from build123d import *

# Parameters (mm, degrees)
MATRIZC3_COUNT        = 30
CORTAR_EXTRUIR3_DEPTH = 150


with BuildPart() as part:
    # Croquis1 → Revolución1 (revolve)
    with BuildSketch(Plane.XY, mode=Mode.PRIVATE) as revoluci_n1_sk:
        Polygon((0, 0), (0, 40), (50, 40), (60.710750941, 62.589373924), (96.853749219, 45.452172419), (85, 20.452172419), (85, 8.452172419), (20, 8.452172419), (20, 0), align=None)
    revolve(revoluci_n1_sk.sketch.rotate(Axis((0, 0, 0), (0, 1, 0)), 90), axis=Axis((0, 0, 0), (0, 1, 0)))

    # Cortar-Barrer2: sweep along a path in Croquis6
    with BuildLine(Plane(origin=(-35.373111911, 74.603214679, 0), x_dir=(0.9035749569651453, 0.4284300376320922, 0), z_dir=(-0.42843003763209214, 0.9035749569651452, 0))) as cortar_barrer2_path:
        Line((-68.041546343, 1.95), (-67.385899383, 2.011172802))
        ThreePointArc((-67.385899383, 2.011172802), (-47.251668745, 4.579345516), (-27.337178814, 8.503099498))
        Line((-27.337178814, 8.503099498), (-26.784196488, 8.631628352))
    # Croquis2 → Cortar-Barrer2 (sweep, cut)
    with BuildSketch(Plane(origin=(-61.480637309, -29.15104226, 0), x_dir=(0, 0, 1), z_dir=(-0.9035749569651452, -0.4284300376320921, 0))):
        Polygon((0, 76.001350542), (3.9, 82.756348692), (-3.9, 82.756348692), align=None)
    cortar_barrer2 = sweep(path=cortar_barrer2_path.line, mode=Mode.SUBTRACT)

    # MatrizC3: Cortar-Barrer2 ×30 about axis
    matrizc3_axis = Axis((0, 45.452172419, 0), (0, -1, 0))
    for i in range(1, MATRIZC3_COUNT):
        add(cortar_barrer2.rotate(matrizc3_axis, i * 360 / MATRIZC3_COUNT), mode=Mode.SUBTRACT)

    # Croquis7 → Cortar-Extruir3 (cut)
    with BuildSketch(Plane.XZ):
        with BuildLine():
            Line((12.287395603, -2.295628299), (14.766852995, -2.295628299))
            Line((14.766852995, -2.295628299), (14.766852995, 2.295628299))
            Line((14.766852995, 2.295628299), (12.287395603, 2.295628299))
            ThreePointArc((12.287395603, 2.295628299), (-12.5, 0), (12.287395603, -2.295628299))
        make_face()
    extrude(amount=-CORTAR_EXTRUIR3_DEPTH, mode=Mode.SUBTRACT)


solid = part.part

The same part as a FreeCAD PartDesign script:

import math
import FreeCAD as App
import Part
import Sketcher

V = App.Vector
Q = App.Units.Quantity

doc = App.newDocument("Part")
body = doc.addObject("PartDesign::Body", "Body")

# Sketch on XY plane
sketch1 = body.newObject("Sketcher::SketchObject", "Sketch")
sketch1.AttachmentSupport = (doc.getObject("XY_Plane"), [""])
sketch1.MapMode = "FlatFace"
sketch1.addGeometry(Part.LineSegment(V(0, 40, 0), V(0, 0, 0)), False)
sketch1.addGeometry(Part.LineSegment(V(0, 0, 0), V(20, 0, 0)), False)
sketch1.addGeometry(Part.LineSegment(V(20, 0, 0), V(20, 8, 0)), False)
sketch1.addGeometry(Part.LineSegment(V(20, 8, 0), V(85, 8, 0)), False)
sketch1.addGeometry(Part.LineSegment(V(85, 8, 0), V(85, 20, 0)), False)
sketch1.addGeometry(Part.LineSegment(V(85, 20, 0), V(97, 45, 0)), False)
sketch1.addGeometry(Part.LineSegment(V(97, 45, 0), V(61, 63, 0)), False)
sketch1.addGeometry(Part.LineSegment(V(61, 63, 0), V(50, 40, 0)), False)
sketch1.addGeometry(Part.LineSegment(V(50, 40, 0), V(0, 40, 0)), False)
sketch1.addConstraint(Sketcher.Constraint("Coincident", 0, 2, 1, 1))
sketch1.addConstraint(Sketcher.Constraint("Coincident", 1, 2, 2, 1))
sketch1.addConstraint(Sketcher.Constraint("Coincident", 2, 2, 3, 1))
sketch1.addConstraint(Sketcher.Constraint("Coincident", 3, 2, 4, 1))
sketch1.addConstraint(Sketcher.Constraint("Coincident", 4, 2, 5, 1))
sketch1.addConstraint(Sketcher.Constraint("Coincident", 5, 2, 6, 1))
sketch1.addConstraint(Sketcher.Constraint("Coincident", 6, 2, 7, 1))
sketch1.addConstraint(Sketcher.Constraint("Coincident", 7, 2, 8, 1))
sketch1.addConstraint(Sketcher.Constraint("Coincident", 8, 2, 0, 1))
sketch1.addConstraint(Sketcher.Constraint("Vertical", 0))
sketch1.addConstraint(Sketcher.Constraint("Horizontal", 1))
sketch1.addConstraint(Sketcher.Constraint("Vertical", 2))
sketch1.addConstraint(Sketcher.Constraint("Horizontal", 3))
sketch1.addConstraint(Sketcher.Constraint("Vertical", 4))
sketch1.addConstraint(Sketcher.Constraint("Horizontal", 8))
sketch1.addConstraint(Sketcher.Constraint("Coincident", 0, 2, -1, 1))
sketch1.addConstraint(Sketcher.Constraint("Perpendicular", 5, 6))
sketch1.addConstraint(Sketcher.Constraint("Perpendicular", 6, 7))
sketch1.addConstraint(Sketcher.Constraint("DistanceX", 1, 1, 1, 2, Q("20 mm")))
sketch1.addConstraint(Sketcher.Constraint("DistanceX", 3, 1, 3, 2, Q("65 mm")))
sketch1.addConstraint(Sketcher.Constraint("DistanceX", 8, 2, 8, 1, Q("50 mm")))
sketch1.addConstraint(Sketcher.Constraint("DistanceY", 0, 2, 0, 1, Q("40 mm")))
sketch1.addConstraint(Sketcher.Constraint("DistanceY", 4, 1, 4, 2, Q("12 mm")))
sketch1.addConstraint(Sketcher.Constraint("Distance", 6, Q("40 mm")))
sketch1.addConstraint(Sketcher.Constraint("Distance", 7, Q("25 mm")))
sketch1.addConstraint(Sketcher.Constraint("DistanceY", 4, 2, 5, 2, Q("25 mm")))
revolution = body.newObject("PartDesign::Revolution", "Revolution")
revolution.Profile = sketch1
revolution.ReferenceAxis = (sketch1, ["V_Axis"])
revolution.Angle = 360

# Sketch on an angled plane
sketch2 = body.newObject("Sketcher::SketchObject", "Sketch001")
sketch2.Placement = App.Placement(V(-61.480637, -29.151042, 0), App.Rotation(V(0, 0, 1), V(-0.428430038, 0.903574957, 0), V(-0.903574957, -0.428430038, 0), "ZXY"))
sketch2.addGeometry(Part.LineSegment(V(0, 76, 0), V(4, 83, 0)), False)
sketch2.addGeometry(Part.LineSegment(V(4, 83, 0), V(-4, 83, 0)), False)
sketch2.addGeometry(Part.LineSegment(V(-4, 83, 0), V(0, 76, 0)), False)
sketch2.addConstraint(Sketcher.Constraint("Coincident", 0, 2, 1, 1))
sketch2.addConstraint(Sketcher.Constraint("Coincident", 1, 2, 2, 1))
sketch2.addConstraint(Sketcher.Constraint("Coincident", 2, 2, 0, 1))
sketch2.addConstraint(Sketcher.Constraint("Horizontal", 1))
sketch2.addConstraint(Sketcher.Constraint("PointOnObject", 2, 2, -2))
sketch2.addConstraint(Sketcher.Constraint("Equal", 0, 2))
sketch2.addConstraint(Sketcher.Constraint("Angle", 0, Q("60 deg")))
sketch2.addConstraint(Sketcher.Constraint("DistanceX", 1, 2, 1, 1, Q("7.8 mm")))
sketch2.addConstraint(Sketcher.Constraint("DistanceY", -1, 1, 0, 2, Q("82.756349 mm")))

# Sketch on an angled plane
sketch3 = body.newObject("Sketcher::SketchObject", "Sketch002")
sketch3.Placement = App.Placement(V(-35.373112, 74.603215, 0), App.Rotation(V(0.903574957, 0.428430038, 0), V(0, 0, 1), V(0.428430038, -0.903574957, 0), "ZXY"))
sketch3.addGeometry(Part.LineSegment(V(-68, -2, 0), V(-67.4, -2, 0)), False)
sketch3.addGeometry(Part.ArcOfCircle(Part.Circle(V(-95.3, -300.7, 0), V(0, 0, 1), 300), math.radians(76.92), math.radians(84.67)), False)
sketch3.addGeometry(Part.LineSegment(V(-27.3, -8.5, 0), V(-26.8, -8.6, 0)), False)
sketch3.addConstraint(Sketcher.Constraint("Tangent", 0, 2, 1, 2))
sketch3.addConstraint(Sketcher.Constraint("Tangent", 1, 1, 2, 1))
sketch3.addConstraint(Sketcher.Constraint("Radius", 1, Q("300 mm")))
sketch3.addConstraint(Sketcher.Constraint("DistanceY", 0, 1, -1, 1, Q("1.95 mm")))
sketch3.addConstraint(Sketcher.Constraint("DistanceX", 0, 2, -1, 1, Q("67.385899 mm")))
sketch3.addConstraint(Sketcher.Constraint("DistanceY", 1, 1, -1, 1, Q("8.5031 mm")))
sketch3.addConstraint(Sketcher.Constraint("DistanceX", 1, 3, -1, 1, Q("95.255289 mm")))
sketch3.addConstraint(Sketcher.Constraint("DistanceY", 2, 2, -1, 1, Q("8.631628 mm")))
sketch3.addConstraint(Sketcher.Constraint("DistanceX", 0, 1, 2, 2, Q("41.25735 mm")))
doc.recompute()

subtractivepipe = body.newObject("PartDesign::SubtractivePipe", "SubtractivePipe")
subtractivepipe.Profile = sketch2
subtractivepipe.Spine = (sketch3, ["Edge1", "Edge2", "Edge3"])
doc.recompute()

polarpattern = body.newObject("PartDesign::PolarPattern", "PolarPattern")
polarpattern.Originals = [subtractivepipe]
polarpattern.Axis = (doc.getObject("Y_Axis"), [""])
polarpattern.Angle = 360
polarpattern.Occurrences = 30
body.Tip = polarpattern

# Sketch on XZ plane
sketch4 = body.newObject("Sketcher::SketchObject", "Sketch003")
sketch4.AttachmentSupport = (doc.getObject("XZ_Plane"), [""])
sketch4.MapMode = "FlatFace"
sketch4.addGeometry(Part.LineSegment(V(12.3, -2.3, 0), V(14.8, -2.3, 0)), False)
sketch4.addGeometry(Part.LineSegment(V(14.8, -2.3, 0), V(14.8, 2.3, 0)), False)
sketch4.addGeometry(Part.LineSegment(V(14.8, 2.3, 0), V(12.3, 2.3, 0)), False)
sketch4.addGeometry(Part.ArcOfCircle(Part.Circle(V(0, 0, 0), V(0, 0, 1), 12.5), math.radians(11), math.radians(349)), False)
sketch4.addConstraint(Sketcher.Constraint("Coincident", 0, 2, 1, 1))
sketch4.addConstraint(Sketcher.Constraint("Coincident", 1, 2, 2, 1))
sketch4.addConstraint(Sketcher.Constraint("Coincident", 2, 2, 3, 1))
sketch4.addConstraint(Sketcher.Constraint("Coincident", 3, 2, 0, 1))
sketch4.addConstraint(Sketcher.Constraint("Horizontal", 0))
sketch4.addConstraint(Sketcher.Constraint("Vertical", 1))
sketch4.addConstraint(Sketcher.Constraint("Horizontal", 2))
sketch4.addConstraint(Sketcher.Constraint("Coincident", 3, 3, -1, 1))
sketch4.addConstraint(Sketcher.Constraint("Vertical", 2, 2, 3, 2))
sketch4.addConstraint(Sketcher.Constraint("Radius", 3, Q("12.5 mm")))
sketch4.addConstraint(Sketcher.Constraint("DistanceX", 0, 1, 0, 2, Q("2.479457 mm")))
sketch4.addConstraint(Sketcher.Constraint("DistanceY", 1, 1, 1, 2, Q("4.591257 mm")))
pocket1 = body.newObject("PartDesign::Pocket", "Pocket")
pocket1.Profile = sketch4
pocket1.Length = 150

doc.recompute()
